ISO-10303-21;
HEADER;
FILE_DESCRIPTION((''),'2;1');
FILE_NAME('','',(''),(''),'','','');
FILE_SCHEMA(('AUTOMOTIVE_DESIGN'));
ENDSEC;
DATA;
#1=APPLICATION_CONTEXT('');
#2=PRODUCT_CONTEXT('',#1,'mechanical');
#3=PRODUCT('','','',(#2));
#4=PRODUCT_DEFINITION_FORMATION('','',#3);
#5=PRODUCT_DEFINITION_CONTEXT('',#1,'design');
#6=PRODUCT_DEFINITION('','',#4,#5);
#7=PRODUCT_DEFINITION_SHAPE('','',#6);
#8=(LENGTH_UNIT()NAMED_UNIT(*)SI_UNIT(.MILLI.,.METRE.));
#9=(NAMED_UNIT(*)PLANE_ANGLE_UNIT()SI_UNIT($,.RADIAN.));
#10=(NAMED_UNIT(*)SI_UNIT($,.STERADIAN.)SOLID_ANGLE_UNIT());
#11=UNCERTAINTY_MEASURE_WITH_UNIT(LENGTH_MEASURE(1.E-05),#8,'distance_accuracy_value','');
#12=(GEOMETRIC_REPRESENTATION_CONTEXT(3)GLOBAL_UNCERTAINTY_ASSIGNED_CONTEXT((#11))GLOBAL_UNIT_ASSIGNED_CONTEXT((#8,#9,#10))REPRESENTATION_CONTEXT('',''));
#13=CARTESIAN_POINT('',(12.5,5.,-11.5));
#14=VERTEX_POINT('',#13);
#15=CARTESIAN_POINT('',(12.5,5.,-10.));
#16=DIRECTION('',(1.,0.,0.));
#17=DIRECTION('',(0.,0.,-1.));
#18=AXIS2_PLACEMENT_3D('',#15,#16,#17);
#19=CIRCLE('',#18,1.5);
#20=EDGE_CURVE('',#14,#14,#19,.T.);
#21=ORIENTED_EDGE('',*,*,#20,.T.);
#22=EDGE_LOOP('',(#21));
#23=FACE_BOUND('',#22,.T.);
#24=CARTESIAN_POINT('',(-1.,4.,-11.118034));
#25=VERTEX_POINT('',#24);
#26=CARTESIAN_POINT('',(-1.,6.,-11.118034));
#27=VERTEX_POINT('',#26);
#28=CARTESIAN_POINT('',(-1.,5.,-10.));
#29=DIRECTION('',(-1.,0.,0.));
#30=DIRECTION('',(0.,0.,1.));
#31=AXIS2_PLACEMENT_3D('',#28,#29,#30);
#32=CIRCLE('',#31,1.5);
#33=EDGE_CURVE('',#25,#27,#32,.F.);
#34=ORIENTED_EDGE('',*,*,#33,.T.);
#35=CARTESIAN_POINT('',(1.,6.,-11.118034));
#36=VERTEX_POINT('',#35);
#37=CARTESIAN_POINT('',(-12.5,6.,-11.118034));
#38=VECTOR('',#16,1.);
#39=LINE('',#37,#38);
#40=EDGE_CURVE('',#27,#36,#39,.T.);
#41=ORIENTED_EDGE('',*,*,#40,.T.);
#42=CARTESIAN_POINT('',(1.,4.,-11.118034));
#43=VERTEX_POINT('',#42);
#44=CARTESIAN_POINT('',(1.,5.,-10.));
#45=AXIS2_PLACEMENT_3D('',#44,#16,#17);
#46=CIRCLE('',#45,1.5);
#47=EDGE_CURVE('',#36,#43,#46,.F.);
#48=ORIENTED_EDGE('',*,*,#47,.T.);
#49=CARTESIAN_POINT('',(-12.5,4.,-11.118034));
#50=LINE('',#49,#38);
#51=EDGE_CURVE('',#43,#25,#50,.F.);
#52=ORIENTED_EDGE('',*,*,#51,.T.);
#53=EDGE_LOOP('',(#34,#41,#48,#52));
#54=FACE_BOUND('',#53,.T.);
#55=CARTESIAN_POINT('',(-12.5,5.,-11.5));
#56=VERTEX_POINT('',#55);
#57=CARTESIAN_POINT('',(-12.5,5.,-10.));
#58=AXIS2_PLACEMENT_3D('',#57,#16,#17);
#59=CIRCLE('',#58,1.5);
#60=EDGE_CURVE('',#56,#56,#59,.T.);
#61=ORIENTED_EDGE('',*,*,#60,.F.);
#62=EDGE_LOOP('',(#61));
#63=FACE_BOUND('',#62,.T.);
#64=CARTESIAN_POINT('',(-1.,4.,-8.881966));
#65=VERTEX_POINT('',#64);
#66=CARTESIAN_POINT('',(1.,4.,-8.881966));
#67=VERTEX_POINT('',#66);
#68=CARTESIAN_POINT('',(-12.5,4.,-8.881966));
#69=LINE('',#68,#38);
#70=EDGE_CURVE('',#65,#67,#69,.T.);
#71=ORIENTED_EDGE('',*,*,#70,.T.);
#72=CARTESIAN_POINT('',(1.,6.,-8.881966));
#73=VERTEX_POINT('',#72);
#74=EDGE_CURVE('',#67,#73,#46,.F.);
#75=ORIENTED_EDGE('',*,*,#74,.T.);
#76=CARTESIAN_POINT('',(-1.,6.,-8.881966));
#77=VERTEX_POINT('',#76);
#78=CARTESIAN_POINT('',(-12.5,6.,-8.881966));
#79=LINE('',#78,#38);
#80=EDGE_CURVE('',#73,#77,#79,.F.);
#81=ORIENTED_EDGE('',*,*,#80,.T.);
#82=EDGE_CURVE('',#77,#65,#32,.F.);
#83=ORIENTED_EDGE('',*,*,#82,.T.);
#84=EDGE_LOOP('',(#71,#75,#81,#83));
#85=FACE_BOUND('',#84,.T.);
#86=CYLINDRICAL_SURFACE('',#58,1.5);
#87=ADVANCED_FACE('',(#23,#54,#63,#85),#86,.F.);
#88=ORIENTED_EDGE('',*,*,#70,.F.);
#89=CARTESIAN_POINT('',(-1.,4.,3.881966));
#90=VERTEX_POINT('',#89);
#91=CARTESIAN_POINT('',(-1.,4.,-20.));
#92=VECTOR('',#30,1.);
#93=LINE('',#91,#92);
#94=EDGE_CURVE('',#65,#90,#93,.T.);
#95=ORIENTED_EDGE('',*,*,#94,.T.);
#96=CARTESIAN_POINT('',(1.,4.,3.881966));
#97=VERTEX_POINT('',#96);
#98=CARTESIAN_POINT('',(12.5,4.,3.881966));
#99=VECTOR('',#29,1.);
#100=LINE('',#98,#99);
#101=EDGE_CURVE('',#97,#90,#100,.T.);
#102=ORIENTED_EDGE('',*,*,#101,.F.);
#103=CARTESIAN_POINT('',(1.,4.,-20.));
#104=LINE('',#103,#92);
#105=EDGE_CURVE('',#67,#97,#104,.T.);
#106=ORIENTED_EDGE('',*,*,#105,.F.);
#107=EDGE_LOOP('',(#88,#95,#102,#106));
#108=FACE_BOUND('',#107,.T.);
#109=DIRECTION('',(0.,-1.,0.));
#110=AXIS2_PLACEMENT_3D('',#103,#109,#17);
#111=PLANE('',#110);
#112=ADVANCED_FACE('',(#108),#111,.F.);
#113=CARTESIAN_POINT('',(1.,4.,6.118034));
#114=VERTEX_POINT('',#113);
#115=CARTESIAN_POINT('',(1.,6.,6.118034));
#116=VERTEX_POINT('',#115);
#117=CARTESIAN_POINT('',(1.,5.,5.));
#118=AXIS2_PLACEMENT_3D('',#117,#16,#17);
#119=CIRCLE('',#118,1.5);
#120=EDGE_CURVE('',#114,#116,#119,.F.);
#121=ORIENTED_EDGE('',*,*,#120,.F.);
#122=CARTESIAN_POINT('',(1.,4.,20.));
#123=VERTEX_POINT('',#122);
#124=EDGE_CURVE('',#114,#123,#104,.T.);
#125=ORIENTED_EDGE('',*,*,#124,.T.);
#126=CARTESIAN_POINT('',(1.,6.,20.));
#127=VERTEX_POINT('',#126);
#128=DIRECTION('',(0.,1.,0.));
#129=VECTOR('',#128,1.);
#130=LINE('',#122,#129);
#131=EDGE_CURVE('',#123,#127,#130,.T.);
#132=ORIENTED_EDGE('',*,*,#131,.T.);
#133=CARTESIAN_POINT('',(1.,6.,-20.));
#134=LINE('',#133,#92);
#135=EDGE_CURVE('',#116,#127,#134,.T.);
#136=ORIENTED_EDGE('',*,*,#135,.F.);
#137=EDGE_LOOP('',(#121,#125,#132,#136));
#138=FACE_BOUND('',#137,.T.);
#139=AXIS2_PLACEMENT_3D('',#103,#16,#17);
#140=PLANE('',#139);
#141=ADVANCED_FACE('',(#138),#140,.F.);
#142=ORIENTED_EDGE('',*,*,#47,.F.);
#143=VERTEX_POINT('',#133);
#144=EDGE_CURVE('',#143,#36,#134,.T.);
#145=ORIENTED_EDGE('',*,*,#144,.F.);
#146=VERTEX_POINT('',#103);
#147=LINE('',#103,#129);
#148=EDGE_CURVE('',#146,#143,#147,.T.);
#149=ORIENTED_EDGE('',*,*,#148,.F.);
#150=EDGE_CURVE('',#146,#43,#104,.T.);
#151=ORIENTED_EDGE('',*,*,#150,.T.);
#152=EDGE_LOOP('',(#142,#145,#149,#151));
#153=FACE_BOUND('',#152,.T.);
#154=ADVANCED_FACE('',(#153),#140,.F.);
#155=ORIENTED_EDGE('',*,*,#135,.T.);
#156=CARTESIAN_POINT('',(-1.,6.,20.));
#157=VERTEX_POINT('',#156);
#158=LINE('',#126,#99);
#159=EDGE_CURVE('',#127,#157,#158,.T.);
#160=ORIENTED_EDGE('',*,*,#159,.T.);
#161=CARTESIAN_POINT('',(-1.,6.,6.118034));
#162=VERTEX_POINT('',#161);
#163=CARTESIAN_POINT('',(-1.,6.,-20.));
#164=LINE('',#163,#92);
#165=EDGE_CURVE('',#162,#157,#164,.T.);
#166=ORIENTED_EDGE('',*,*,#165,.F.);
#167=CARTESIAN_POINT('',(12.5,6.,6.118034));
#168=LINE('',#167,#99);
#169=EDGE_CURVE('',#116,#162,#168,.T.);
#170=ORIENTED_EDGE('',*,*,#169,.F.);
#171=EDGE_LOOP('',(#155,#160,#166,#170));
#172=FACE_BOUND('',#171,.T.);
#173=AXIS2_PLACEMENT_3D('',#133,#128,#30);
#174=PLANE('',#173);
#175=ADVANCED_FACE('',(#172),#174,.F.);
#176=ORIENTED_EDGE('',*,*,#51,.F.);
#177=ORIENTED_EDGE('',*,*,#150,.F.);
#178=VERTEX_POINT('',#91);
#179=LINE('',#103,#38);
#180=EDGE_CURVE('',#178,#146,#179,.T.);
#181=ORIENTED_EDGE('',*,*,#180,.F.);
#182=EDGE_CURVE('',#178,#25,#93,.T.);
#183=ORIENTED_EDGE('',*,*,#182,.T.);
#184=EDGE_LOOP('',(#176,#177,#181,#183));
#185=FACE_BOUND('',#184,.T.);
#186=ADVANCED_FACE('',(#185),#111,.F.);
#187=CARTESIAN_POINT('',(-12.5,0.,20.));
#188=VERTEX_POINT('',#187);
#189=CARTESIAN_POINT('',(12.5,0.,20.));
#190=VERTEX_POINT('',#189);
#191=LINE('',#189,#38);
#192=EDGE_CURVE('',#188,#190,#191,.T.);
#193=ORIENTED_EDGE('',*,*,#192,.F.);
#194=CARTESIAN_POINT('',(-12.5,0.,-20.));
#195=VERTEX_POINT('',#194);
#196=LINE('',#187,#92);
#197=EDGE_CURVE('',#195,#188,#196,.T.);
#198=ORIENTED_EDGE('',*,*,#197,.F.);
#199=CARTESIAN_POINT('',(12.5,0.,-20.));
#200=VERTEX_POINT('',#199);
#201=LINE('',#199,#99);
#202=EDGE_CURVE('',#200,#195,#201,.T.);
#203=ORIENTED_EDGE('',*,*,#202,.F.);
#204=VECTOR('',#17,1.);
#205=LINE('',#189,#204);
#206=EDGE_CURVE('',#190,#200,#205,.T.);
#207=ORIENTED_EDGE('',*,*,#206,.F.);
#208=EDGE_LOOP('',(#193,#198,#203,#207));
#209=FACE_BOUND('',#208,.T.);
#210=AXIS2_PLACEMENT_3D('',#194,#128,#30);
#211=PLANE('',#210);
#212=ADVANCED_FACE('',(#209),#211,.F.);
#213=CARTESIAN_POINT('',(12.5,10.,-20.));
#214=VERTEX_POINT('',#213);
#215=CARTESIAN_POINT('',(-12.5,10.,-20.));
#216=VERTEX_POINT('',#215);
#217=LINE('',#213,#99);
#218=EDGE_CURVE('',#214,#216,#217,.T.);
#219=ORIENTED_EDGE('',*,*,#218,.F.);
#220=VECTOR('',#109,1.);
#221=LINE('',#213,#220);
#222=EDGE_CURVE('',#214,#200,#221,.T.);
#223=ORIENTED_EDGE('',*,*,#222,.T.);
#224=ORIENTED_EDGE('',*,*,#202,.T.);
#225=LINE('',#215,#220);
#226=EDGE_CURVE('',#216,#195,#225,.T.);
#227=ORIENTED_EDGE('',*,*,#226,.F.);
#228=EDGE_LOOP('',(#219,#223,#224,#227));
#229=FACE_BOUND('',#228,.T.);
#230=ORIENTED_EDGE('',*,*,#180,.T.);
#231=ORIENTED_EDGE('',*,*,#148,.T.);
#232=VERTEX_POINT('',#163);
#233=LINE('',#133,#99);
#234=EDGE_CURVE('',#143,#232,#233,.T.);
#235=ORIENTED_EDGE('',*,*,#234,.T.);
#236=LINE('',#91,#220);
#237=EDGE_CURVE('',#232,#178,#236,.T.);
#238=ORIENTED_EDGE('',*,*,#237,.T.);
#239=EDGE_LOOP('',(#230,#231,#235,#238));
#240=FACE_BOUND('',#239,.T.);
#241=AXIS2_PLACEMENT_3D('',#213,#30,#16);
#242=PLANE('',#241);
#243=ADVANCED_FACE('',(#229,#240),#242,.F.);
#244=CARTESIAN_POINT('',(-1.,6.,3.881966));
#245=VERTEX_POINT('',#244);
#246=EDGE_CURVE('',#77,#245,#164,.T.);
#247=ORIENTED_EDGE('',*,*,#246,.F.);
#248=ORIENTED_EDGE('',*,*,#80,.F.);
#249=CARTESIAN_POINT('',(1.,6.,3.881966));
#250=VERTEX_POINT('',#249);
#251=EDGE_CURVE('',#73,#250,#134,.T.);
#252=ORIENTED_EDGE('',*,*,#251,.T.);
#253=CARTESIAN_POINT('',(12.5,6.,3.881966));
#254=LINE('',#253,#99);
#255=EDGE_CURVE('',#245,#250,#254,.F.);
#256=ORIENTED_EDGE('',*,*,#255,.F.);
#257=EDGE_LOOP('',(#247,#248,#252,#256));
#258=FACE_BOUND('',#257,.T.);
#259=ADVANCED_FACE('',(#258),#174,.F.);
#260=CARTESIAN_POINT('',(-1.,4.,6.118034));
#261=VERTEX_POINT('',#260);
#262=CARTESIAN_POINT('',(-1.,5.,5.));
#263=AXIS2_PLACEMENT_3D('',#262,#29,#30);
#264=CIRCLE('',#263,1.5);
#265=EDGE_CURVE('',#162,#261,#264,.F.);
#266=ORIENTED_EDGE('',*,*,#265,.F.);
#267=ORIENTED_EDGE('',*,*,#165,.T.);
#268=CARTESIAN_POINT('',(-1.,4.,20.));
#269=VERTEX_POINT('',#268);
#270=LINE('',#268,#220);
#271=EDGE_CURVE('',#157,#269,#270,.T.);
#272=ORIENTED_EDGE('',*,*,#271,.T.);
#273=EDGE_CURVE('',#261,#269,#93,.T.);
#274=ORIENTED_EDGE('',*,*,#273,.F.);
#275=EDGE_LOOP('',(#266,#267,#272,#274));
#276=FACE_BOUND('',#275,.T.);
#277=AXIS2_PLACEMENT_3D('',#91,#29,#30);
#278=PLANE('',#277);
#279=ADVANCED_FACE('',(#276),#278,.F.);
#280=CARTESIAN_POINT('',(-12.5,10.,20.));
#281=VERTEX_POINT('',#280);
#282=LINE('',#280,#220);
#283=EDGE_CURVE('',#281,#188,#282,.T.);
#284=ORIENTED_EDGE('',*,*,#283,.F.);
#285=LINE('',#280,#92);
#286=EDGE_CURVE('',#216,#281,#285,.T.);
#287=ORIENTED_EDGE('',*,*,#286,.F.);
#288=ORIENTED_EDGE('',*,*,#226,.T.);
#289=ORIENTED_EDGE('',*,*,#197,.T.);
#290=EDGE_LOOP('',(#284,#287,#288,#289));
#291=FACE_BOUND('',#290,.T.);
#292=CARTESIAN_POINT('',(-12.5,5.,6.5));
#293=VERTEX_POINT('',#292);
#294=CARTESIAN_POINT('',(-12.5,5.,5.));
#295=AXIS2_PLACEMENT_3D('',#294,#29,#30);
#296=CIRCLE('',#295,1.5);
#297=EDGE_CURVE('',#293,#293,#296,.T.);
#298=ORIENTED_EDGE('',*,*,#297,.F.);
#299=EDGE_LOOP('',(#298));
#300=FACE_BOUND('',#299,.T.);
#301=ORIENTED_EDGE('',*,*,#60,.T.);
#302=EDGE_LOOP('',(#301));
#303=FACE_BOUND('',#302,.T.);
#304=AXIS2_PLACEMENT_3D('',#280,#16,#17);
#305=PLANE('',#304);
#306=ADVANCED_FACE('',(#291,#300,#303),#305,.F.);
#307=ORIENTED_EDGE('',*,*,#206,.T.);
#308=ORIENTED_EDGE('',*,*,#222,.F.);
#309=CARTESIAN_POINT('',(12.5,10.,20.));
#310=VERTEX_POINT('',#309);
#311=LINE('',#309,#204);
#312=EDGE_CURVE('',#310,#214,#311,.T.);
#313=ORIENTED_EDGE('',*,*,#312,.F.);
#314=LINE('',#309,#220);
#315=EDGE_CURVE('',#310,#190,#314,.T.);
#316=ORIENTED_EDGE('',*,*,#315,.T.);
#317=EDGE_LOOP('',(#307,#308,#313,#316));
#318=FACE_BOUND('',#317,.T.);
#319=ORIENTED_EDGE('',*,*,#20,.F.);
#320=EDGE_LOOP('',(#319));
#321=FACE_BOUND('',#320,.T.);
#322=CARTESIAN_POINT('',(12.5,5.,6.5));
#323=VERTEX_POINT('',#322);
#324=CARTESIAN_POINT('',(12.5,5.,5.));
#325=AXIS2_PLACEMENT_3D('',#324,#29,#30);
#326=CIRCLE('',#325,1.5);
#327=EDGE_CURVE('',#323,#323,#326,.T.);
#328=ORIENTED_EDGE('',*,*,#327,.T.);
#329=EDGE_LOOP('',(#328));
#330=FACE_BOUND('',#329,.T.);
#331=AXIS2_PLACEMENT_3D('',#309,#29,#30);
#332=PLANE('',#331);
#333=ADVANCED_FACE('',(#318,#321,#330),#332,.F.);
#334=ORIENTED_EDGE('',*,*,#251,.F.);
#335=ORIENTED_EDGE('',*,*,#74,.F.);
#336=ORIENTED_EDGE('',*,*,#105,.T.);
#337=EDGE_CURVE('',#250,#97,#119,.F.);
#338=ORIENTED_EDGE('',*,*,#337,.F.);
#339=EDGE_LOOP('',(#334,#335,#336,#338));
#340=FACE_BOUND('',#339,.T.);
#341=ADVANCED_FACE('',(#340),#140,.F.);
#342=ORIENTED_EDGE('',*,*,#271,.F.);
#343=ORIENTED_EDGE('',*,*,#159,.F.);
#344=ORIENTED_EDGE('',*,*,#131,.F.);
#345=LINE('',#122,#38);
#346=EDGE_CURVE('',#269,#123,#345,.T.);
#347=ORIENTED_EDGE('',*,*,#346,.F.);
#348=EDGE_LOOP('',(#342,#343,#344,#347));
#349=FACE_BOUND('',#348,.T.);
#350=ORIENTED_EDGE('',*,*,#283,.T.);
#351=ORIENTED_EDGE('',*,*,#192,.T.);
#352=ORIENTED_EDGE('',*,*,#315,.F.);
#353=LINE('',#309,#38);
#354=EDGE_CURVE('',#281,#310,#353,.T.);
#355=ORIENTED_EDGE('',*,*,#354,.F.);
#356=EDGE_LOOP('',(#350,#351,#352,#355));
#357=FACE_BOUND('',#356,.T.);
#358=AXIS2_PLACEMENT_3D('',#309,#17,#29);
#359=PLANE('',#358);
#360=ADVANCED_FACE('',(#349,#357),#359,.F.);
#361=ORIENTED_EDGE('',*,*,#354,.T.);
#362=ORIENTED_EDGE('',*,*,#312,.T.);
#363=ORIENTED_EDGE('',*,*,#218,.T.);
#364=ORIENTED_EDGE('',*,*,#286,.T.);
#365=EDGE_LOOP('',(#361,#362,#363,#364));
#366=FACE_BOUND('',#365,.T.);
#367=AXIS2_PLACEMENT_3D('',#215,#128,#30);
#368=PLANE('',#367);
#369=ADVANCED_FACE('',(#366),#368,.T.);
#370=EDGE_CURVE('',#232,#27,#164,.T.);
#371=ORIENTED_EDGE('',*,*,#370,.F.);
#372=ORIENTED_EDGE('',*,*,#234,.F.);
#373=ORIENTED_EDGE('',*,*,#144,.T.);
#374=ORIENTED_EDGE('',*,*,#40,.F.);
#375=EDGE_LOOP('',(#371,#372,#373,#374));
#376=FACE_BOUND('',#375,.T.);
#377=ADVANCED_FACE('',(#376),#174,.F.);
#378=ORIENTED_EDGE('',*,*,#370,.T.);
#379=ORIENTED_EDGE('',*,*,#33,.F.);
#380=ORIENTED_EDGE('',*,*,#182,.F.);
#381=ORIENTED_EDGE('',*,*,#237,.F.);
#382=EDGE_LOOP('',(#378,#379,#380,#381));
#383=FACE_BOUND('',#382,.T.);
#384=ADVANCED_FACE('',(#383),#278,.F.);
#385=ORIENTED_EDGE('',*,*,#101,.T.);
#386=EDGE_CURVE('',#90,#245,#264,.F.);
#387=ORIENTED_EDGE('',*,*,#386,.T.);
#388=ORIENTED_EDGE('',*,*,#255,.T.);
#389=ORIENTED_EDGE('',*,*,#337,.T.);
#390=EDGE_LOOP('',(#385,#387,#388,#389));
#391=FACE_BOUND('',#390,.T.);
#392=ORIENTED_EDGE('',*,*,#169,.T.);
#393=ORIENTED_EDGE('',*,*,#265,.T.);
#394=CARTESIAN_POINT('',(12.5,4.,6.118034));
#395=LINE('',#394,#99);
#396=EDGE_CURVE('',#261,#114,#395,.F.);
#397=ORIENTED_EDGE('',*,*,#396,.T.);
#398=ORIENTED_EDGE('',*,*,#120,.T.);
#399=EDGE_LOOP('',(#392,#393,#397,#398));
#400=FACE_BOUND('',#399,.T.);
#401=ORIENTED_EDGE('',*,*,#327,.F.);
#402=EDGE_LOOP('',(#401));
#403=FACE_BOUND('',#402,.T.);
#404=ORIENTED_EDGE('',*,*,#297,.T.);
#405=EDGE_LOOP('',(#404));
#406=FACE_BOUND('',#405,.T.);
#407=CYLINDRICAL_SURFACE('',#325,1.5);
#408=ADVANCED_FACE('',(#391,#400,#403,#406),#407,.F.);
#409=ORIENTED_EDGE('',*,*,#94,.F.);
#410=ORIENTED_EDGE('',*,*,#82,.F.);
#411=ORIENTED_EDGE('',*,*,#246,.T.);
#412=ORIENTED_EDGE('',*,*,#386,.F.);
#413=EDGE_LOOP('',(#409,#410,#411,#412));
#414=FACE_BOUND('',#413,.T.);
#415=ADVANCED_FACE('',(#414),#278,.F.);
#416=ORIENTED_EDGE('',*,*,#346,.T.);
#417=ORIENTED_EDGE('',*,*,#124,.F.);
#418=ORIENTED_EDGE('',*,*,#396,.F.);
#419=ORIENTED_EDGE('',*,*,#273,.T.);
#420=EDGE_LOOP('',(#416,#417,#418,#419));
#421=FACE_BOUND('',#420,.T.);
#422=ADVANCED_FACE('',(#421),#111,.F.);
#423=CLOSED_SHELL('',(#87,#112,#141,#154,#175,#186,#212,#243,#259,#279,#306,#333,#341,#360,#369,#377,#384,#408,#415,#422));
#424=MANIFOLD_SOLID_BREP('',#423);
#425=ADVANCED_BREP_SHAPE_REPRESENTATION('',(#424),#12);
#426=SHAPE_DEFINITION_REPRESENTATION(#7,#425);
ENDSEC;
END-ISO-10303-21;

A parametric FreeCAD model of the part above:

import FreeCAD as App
import Part
import Sketcher

V = App.Vector

doc = App.newDocument("Part")
params = doc.addObject("Spreadsheet::Sheet", "Params")
for row, (alias, value) in enumerate([
    ("sketch1_width", "25 mm"),
    ("sketch1_height", "40 mm"),
    ("pad1_length", "10 mm"),
    ("sketch2_diameter", "3 mm"),
    ("sketch3_diameter", "3 mm"),
    ("sketch4_width", "2 mm"),
], start=1):
    params.set(f"A{row}", alias)
    params.set(f"B{row}", "=" + value)
    params.setAlias(f"B{row}", alias)

body = doc.addObject("PartDesign::Body", "Body")

sketch1 = body.newObject("Sketcher::SketchObject", "Sketch")
sketch1.AttachmentSupport = (doc.getObject("XZ_Plane"), [""])
sketch1.MapMode = "FlatFace"
sketch1.addGeometry(Part.LineSegment(V(-12, -20, 0), V(-12, 20, 0)), False)
sketch1.addGeometry(Part.LineSegment(V(-12, 20, 0), V(12, 20, 0)), False)
sketch1.addGeometry(Part.LineSegment(V(12, 20, 0), V(12, -20, 0)), False)
sketch1.addGeometry(Part.LineSegment(V(12, -20, 0), V(-12, -20, 0)), False)
sketch1.addConstraint(Sketcher.Constraint("Coincident", 0, 2, 1, 1))
sketch1.addConstraint(Sketcher.Constraint("Coincident", 1, 2, 2, 1))
sketch1.addConstraint(Sketcher.Constraint("Coincident", 2, 2, 3, 1))
sketch1.addConstraint(Sketcher.Constraint("Coincident", 3, 2, 0, 1))
sketch1.addConstraint(Sketcher.Constraint("Vertical", 0))
sketch1.addConstraint(Sketcher.Constraint("Horizontal", 1))
sketch1.addConstraint(Sketcher.Constraint("Vertical", 2))
sketch1.addConstraint(Sketcher.Constraint("Horizontal", 3))
sketch1.addConstraint(Sketcher.Constraint("Symmetric", 0, 2, 2, 2, -1, 1))
sketch1.addConstraint(Sketcher.Constraint("DistanceX", 1, 1, 1, 2, 25.0))
sketch1.addConstraint(Sketcher.Constraint("DistanceY", 0, 1, 0, 2, 40.0))
sketch1.setExpression("Constraints[9]", "Params.sketch1_width")
sketch1.setExpression("Constraints[10]", "Params.sketch1_height")
pad1 = body.newObject("PartDesign::Pad", "Pad")
pad1.Profile = sketch1
pad1.setExpression("Length", "Params.pad1_length")
pad1.Reversed = True

sketch2 = body.newObject("Sketcher::SketchObject", "Sketch001")
sketch2.AttachmentSupport = (doc.getObject("YZ_Plane"), [""])
sketch2.MapMode = "FlatFace"
sketch2.AttachmentOffset = App.Placement(V(0, 0, 12.5), App.Rotation())
sketch2.addGeometry(Part.Circle(V(5, -10, 0), V(0, 0, 1), 1.5), False)
sketch2.addConstraint(Sketcher.Constraint("Diameter", 0, 3.0))
sketch2.addConstraint(Sketcher.Constraint("DistanceX", -1, 1, 0, 3, 5.0))
sketch2.addConstraint(Sketcher.Constraint("DistanceY", 0, 3, -1, 1, 10.0))
sketch2.setExpression("Constraints[0]", "Params.sketch2_diameter")
pocket1 = body.newObject("PartDesign::Pocket", "Pocket")
pocket1.Profile = sketch2
pocket1.Type = "ThroughAll"

sketch3 = body.newObject("Sketcher::SketchObject", "Sketch002")
sketch3.AttachmentSupport = (doc.getObject("YZ_Plane"), [""])
sketch3.MapMode = "FlatFace"
sketch3.AttachmentOffset = App.Placement(V(0, 0, -12.5), App.Rotation())
sketch3.addGeometry(Part.Circle(V(5, 5, 0), V(0, 0, 1), 1.5), False)
sketch3.addConstraint(Sketcher.Constraint("Diameter", 0, 3.0))
sketch3.addConstraint(Sketcher.Constraint("DistanceX", -1, 1, 0, 3, 5.0))
sketch3.addConstraint(Sketcher.Constraint("DistanceY", -1, 1, 0, 3, 5.0))
sketch3.setExpression("Constraints[0]", "Params.sketch3_diameter")
pocket2 = body.newObject("PartDesign::Pocket", "Pocket001")
pocket2.Profile = sketch3
pocket2.Type = "ThroughAll"
pocket2.Reversed = True

sketch4 = body.newObject("Sketcher::SketchObject", "Sketch003")
sketch4.AttachmentSupport = (doc.getObject("XY_Plane"), [""])
sketch4.MapMode = "FlatFace"
sketch4.AttachmentOffset = App.Placement(V(0, 0, 20), App.Rotation())
sketch4.addGeometry(Part.LineSegment(V(-1, 6, 0), V(-1, 4, 0)), False)
sketch4.addGeometry(Part.LineSegment(V(-1, 4, 0), V(1, 4, 0)), False)
sketch4.addGeometry(Part.LineSegment(V(1, 4, 0), V(1, 6, 0)), False)
sketch4.addGeometry(Part.LineSegment(V(1, 6, 0), V(-1, 6, 0)), False)
sketch4.addConstraint(Sketcher.Constraint("Coincident", 0, 2, 1, 1))
sketch4.addConstraint(Sketcher.Constraint("Coincident", 1, 2, 2, 1))
sketch4.addConstraint(Sketcher.Constraint("Coincident", 2, 2, 3, 1))
sketch4.addConstraint(Sketcher.Constraint("Coincident", 3, 2, 0, 1))
sketch4.addConstraint(Sketcher.Constraint("Vertical", 0))
sketch4.addConstraint(Sketcher.Constraint("Horizontal", 1))
sketch4.addConstraint(Sketcher.Constraint("Vertical", 2))
sketch4.addConstraint(Sketcher.Constraint("Horizontal", 3))
sketch4.addConstraint(Sketcher.Constraint("Equal", 3, 0))
sketch4.addConstraint(Sketcher.Constraint("DistanceX", 1, 1, 1, 2, 2.0))
sketch4.addConstraint(Sketcher.Constraint("DistanceX", 0, 2, -1, 1, 1.0))
sketch4.addConstraint(Sketcher.Constraint("DistanceY", -1, 1, 0, 2, 4.0))
sketch4.setExpression("Constraints[9]", "Params.sketch4_width")
pocket3 = body.newObject("PartDesign::Pocket", "Pocket002")
pocket3.Profile = sketch4
pocket3.Type = "ThroughAll"

doc.recompute()
